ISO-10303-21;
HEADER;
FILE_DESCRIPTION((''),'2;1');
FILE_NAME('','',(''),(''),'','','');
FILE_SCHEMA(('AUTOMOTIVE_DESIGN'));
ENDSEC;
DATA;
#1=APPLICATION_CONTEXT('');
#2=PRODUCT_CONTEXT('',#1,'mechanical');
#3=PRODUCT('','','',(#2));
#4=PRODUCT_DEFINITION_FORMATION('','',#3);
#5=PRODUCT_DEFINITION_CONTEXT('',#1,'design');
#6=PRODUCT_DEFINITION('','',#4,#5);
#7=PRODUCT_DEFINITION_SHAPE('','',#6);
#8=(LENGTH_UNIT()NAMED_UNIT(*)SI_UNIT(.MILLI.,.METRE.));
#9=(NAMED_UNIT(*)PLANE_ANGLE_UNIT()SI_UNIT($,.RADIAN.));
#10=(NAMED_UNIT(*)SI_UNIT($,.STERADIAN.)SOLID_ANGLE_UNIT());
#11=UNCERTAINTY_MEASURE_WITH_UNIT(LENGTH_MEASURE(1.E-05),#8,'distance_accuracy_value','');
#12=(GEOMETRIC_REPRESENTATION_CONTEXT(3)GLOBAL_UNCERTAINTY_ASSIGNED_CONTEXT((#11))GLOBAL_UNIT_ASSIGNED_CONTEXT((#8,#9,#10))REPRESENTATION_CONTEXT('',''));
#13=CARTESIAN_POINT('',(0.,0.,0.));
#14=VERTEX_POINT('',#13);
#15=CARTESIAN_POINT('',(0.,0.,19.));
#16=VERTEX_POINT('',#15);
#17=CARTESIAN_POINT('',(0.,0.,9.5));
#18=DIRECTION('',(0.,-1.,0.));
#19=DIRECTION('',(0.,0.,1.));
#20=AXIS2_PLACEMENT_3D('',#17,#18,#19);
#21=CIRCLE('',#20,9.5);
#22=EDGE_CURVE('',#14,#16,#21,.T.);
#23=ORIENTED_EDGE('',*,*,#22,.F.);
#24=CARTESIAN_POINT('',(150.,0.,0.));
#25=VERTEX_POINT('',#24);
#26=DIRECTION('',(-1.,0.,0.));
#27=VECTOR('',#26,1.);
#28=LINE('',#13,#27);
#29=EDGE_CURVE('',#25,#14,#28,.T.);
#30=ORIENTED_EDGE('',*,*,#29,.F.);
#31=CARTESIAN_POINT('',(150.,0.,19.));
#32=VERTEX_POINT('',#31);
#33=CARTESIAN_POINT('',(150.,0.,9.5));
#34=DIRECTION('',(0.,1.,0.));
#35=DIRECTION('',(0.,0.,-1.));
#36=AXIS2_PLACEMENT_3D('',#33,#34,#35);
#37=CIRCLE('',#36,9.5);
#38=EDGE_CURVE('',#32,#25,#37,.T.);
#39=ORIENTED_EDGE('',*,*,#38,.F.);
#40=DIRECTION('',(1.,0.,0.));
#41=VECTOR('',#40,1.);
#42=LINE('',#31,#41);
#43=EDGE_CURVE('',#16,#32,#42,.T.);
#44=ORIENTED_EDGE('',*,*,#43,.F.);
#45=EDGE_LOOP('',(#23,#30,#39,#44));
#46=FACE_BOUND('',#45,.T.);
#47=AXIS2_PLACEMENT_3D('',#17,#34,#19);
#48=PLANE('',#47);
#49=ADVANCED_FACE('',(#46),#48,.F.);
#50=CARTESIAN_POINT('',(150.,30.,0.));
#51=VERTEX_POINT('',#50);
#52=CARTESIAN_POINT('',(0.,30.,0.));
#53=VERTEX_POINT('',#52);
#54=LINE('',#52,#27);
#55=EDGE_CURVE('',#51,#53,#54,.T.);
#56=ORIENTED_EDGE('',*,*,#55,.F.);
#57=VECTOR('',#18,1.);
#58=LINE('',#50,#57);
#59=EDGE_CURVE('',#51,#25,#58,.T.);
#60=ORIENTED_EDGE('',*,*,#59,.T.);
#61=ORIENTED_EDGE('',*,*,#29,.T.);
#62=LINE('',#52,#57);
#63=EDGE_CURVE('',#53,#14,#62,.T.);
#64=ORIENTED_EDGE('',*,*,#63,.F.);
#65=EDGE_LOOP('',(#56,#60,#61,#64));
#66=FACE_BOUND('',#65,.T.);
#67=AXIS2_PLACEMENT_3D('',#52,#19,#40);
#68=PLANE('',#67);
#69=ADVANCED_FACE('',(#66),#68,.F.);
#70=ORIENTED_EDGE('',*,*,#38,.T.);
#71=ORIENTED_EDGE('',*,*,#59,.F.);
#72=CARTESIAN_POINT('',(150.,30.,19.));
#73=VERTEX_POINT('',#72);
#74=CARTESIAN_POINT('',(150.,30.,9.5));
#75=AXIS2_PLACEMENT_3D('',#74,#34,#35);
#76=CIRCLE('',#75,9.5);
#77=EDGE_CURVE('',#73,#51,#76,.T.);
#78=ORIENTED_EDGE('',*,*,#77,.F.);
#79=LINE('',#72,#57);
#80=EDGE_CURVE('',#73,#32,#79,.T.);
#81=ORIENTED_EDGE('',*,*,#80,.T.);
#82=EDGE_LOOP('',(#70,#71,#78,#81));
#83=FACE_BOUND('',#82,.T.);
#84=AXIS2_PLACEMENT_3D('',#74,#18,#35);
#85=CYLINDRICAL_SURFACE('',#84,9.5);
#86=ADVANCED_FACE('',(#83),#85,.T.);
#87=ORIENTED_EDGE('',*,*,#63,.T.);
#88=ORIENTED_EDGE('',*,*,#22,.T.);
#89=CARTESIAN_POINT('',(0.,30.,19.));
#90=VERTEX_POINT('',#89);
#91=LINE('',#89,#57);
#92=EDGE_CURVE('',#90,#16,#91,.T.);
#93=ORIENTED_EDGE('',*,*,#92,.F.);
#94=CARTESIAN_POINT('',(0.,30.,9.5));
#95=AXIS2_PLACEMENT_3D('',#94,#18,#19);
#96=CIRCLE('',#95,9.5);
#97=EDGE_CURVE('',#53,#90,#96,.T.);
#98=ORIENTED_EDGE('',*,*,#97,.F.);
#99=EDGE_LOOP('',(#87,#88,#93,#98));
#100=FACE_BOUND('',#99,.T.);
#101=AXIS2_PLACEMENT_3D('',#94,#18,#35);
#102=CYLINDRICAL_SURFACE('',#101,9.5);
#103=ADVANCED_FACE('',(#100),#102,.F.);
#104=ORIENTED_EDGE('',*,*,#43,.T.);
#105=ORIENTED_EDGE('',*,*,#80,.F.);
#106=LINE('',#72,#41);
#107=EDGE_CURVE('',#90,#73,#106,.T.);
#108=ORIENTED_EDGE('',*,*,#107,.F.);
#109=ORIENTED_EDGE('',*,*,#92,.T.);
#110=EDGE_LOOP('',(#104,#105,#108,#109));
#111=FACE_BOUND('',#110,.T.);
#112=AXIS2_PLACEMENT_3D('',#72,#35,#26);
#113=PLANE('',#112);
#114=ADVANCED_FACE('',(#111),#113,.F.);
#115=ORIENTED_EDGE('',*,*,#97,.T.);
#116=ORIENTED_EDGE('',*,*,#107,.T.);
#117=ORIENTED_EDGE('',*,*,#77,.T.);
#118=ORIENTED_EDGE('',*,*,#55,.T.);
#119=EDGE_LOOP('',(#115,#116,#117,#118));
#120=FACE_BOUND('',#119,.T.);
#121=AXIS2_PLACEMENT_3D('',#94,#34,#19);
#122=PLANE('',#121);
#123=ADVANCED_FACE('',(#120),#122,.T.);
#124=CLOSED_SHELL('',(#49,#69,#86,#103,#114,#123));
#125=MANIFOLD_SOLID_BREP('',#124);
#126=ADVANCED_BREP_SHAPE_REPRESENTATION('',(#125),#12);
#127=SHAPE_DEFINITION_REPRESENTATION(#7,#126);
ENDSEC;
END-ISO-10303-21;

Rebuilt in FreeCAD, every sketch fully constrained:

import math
import FreeCAD as App
import Part
import Sketcher
from FreeCAD import Vector
Q = App.Units.Quantity

doc = App.newDocument("Part")
body = doc.addObject("PartDesign::Body", "Body")

sketch1 = body.newObject("Sketcher::SketchObject", "Sketch")
sketch1.AttachmentSupport = (doc.getObject("XZ_Plane"), [""])
sketch1.MapMode = "FlatFace"
sketch1.addGeometry([
    Part.LineSegment(Vector(150, 0, 0), Vector(0, 0, 0)),
    Part.ArcOfCircle(Part.Circle(Vector(0, 10, 0), Vector(0, 0, 1), 10), math.radians(-90), math.radians(90)),
    Part.LineSegment(Vector(0, 19, 0), Vector(150, 19, 0)),
    Part.ArcOfCircle(Part.Circle(Vector(150, 10, 0), Vector(0, 0, 1), 10), math.radians(-90), math.radians(90)),
], False)
sketch1.addConstraint([
    Sketcher.Constraint("Tangent", 0, 2, 1, 1),
    Sketcher.Constraint("Tangent", 1, 2, 2, 1),
    Sketcher.Constraint("Tangent", 2, 2, 3, 2),
    Sketcher.Constraint("Tangent", 3, 1, 0, 1),
    Sketcher.Constraint("Horizontal", 0),
    Sketcher.Constraint("Horizontal", 2),
    Sketcher.Constraint("Coincident", 0, 2, -1, 1),
    Sketcher.Constraint("Radius", 1, Q("9.5 mm")),
    Sketcher.Constraint("DistanceX", 0, 2, 0, 1, Q("150 mm")),
])
pad1 = body.newObject("PartDesign::Pad", "Pad")
pad1.Profile = sketch1
pad1.Length = 30
pad1.Reversed = True

doc.recompute()
